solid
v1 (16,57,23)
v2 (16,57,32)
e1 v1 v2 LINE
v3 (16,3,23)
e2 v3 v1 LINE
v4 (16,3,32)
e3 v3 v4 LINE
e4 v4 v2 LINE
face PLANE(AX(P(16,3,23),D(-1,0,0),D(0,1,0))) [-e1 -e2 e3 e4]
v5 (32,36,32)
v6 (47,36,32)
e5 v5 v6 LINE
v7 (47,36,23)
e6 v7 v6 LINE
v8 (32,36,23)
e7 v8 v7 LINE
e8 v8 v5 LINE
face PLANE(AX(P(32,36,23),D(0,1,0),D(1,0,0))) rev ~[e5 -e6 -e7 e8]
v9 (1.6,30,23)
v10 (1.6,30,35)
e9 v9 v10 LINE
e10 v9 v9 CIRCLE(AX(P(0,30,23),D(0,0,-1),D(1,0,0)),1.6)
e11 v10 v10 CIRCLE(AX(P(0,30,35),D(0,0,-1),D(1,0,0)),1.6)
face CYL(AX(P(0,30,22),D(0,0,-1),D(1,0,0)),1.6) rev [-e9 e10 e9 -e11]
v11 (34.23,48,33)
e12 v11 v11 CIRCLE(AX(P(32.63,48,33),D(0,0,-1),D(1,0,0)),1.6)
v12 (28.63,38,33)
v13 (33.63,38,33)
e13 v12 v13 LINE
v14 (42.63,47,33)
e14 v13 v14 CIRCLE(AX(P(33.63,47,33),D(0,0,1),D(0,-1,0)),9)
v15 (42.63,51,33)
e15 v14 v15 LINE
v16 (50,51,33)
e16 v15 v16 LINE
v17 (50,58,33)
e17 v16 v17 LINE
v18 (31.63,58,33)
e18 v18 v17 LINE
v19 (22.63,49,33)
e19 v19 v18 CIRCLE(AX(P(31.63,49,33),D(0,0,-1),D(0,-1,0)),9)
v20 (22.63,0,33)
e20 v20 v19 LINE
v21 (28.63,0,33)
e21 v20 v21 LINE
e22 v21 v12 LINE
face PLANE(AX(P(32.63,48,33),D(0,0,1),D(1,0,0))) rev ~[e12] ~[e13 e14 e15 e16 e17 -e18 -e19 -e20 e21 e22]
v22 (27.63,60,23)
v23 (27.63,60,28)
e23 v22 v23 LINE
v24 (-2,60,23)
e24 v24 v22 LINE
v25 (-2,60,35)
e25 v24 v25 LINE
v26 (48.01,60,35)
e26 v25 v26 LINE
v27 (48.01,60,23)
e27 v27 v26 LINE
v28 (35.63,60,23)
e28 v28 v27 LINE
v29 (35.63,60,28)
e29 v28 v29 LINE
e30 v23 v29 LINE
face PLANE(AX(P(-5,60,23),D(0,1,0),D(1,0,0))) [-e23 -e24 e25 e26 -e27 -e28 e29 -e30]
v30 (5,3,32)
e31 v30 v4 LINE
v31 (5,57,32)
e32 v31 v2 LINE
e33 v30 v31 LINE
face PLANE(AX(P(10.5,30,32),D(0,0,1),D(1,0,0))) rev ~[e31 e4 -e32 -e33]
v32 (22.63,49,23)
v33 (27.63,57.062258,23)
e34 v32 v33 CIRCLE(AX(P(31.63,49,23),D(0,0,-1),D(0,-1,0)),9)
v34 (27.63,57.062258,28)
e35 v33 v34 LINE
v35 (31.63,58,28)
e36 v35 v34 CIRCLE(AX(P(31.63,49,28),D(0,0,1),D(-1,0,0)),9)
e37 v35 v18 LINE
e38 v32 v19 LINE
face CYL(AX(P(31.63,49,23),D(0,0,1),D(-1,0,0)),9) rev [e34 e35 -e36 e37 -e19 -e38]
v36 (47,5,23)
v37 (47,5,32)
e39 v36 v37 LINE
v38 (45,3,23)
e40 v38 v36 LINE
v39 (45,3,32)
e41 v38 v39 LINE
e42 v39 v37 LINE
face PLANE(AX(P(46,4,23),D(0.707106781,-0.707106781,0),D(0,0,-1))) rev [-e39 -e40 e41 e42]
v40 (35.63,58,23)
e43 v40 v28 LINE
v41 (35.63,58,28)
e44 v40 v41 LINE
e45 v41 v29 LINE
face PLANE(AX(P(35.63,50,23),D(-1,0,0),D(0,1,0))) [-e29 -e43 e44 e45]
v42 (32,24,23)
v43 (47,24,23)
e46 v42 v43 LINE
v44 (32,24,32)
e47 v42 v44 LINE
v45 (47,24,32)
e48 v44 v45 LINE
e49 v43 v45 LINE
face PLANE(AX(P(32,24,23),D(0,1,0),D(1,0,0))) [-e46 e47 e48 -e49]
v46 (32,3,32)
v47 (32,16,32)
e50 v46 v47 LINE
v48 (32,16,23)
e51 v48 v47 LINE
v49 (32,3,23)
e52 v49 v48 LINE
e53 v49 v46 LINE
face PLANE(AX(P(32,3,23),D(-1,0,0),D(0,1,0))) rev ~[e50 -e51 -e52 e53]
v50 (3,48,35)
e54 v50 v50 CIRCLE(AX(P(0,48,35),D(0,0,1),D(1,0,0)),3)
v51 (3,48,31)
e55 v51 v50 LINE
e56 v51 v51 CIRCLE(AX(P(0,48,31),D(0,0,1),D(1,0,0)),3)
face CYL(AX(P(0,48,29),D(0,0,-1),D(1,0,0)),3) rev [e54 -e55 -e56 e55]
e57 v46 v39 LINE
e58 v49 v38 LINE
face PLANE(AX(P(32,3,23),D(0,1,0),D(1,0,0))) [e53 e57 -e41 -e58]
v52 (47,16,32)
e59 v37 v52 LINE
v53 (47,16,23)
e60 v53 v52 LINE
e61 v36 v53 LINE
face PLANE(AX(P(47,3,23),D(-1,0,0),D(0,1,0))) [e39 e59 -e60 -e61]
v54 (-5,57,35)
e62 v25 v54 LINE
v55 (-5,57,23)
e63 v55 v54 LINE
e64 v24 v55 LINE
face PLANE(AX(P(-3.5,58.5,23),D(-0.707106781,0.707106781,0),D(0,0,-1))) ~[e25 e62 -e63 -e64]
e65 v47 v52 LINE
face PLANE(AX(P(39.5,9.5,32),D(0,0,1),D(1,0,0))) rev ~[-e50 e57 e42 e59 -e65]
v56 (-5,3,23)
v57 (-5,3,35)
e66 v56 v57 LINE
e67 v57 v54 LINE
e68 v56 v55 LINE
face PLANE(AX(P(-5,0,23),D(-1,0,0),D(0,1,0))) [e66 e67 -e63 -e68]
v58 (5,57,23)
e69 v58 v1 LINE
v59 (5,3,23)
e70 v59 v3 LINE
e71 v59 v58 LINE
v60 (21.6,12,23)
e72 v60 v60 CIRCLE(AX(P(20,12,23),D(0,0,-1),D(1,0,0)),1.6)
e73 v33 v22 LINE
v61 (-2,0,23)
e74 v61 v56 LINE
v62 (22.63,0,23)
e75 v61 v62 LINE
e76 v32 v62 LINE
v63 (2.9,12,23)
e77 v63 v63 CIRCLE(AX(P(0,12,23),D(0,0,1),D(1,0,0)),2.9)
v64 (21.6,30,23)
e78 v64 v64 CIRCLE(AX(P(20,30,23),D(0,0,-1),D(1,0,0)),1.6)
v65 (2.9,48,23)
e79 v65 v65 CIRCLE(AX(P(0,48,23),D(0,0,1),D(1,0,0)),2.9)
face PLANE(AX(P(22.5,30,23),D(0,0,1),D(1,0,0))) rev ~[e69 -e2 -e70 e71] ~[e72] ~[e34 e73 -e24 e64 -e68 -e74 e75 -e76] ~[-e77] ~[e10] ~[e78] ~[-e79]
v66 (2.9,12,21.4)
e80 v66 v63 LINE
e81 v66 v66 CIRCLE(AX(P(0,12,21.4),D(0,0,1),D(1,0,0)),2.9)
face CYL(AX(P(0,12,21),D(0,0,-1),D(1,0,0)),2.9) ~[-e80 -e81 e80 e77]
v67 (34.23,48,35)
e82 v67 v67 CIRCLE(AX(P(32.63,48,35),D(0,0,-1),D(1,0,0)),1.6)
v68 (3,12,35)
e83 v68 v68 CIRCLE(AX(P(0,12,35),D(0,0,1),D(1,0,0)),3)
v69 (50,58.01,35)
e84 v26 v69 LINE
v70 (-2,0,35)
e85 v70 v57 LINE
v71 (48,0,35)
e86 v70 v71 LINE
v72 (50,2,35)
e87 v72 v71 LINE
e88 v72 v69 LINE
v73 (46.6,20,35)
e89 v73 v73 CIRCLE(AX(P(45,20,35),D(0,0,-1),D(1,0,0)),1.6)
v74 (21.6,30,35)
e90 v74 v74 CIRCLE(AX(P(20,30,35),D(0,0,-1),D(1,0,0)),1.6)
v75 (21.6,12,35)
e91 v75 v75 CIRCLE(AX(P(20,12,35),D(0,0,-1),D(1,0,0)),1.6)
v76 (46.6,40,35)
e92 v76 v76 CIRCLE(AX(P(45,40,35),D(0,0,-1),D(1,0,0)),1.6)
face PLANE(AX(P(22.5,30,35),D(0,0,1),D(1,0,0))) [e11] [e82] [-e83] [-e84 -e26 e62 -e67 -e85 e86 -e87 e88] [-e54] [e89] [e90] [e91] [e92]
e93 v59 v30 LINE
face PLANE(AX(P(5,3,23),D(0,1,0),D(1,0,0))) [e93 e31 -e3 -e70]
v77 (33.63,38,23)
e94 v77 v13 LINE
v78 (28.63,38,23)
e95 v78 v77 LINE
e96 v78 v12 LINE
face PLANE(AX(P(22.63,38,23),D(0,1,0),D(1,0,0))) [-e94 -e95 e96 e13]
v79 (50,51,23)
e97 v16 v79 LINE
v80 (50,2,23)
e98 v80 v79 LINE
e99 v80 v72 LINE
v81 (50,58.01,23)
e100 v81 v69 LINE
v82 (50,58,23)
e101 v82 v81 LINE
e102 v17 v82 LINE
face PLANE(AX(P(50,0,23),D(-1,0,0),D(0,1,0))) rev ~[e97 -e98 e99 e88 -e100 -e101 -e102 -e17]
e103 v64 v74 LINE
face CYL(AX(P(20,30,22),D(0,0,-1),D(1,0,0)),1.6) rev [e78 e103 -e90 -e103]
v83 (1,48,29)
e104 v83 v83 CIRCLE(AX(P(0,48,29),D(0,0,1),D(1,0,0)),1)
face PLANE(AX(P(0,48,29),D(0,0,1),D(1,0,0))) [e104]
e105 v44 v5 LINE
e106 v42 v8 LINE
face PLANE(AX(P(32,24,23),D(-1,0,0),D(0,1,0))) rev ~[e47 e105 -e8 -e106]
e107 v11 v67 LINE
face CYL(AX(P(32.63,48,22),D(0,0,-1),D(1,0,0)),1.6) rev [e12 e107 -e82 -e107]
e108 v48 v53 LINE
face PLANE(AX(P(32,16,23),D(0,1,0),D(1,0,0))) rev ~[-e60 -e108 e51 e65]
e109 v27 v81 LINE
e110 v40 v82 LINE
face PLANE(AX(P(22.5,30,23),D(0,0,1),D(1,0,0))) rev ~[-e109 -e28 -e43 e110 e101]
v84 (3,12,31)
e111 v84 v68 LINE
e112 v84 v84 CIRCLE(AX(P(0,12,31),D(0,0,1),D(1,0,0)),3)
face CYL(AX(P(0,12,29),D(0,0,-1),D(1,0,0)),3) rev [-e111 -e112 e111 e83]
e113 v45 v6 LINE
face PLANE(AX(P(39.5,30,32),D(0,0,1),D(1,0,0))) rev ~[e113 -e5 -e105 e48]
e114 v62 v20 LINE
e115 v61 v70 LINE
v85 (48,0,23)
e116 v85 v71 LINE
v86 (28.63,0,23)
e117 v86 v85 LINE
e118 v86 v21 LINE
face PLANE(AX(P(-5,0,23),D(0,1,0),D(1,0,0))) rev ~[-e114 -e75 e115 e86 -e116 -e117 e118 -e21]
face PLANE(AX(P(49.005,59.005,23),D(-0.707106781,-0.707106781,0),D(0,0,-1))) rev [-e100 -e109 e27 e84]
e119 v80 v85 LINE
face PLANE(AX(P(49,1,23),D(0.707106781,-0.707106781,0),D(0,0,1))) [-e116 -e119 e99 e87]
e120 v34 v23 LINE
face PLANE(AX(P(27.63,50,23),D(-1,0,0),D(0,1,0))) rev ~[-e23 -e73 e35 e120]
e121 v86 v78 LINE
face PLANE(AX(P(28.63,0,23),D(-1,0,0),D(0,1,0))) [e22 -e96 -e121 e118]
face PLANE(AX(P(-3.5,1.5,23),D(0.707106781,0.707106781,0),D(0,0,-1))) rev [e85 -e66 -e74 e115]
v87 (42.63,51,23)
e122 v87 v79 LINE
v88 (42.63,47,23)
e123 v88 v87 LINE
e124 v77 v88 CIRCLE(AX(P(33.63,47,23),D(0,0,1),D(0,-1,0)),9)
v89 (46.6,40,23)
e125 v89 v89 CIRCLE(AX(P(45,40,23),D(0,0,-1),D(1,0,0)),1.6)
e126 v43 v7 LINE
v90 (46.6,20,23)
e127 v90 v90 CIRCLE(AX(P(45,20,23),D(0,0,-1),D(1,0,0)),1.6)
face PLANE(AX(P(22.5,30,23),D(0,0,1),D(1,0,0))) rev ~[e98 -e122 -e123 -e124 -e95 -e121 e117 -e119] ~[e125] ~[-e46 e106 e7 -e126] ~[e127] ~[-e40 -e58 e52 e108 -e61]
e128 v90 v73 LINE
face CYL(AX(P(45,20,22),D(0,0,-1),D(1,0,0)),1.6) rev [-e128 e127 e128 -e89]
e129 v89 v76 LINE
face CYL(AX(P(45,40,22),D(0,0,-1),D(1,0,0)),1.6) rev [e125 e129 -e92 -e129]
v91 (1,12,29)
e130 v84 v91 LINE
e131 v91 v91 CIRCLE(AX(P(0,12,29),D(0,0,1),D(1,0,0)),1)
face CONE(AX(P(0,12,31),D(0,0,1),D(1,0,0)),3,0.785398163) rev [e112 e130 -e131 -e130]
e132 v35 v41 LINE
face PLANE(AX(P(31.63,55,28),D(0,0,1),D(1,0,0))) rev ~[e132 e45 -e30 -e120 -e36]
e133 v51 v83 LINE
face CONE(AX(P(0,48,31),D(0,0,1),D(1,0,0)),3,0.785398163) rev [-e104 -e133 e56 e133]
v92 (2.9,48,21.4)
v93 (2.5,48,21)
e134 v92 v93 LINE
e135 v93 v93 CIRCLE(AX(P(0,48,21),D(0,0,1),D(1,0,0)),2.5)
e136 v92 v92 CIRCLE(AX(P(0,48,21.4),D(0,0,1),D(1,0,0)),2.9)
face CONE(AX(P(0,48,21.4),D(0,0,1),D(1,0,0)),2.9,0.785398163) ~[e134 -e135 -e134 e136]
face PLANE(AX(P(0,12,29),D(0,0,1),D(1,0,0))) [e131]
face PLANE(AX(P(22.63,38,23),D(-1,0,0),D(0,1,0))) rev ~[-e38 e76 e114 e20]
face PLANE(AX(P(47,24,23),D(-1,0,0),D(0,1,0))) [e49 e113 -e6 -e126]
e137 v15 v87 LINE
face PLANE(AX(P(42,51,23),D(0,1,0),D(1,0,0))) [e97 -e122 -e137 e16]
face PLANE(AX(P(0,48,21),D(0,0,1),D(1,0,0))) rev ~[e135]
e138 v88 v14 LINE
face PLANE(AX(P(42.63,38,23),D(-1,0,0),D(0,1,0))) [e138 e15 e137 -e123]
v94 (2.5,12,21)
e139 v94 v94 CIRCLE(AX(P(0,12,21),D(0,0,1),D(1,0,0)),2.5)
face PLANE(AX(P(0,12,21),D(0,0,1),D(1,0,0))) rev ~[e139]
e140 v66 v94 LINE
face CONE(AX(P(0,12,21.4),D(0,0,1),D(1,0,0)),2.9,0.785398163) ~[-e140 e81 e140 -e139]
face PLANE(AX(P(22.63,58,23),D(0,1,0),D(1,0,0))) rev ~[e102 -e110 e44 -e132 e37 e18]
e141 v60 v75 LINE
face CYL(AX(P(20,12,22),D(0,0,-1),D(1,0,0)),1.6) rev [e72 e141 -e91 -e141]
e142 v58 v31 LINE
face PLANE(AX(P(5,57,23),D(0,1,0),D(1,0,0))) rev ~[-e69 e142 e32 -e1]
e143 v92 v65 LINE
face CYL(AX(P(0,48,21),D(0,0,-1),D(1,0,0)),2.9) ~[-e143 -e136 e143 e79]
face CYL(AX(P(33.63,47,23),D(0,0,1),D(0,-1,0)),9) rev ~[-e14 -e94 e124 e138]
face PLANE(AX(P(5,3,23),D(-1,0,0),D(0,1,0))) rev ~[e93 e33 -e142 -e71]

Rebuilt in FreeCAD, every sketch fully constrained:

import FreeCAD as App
import Part
import Sketcher


def edges_at(feature, points):
    """Names of the edges that pass closest to the given points."""
    edges = feature.Shape.Edges
    near = lambda p: min(range(len(edges)), key=lambda i: edges[i].distToShape(Part.Vertex(*p))[0])
    return sorted({f"Edge{near(p) + 1}" for p in points})

doc = App.newDocument("Part")
body = doc.addObject("PartDesign::Body", "Body")

# Sketch on XY plane
sketch1 = body.newObject("Sketcher::SketchObject", "Sketch")
sketch1.AttachmentSupport = (doc.getObject("XY_Plane"), [""])
sketch1.MapMode = "FlatFace"
sketch1.AttachmentOffset = App.Placement(App.Vector(0, 0, 23), App.Rotation())
sketch1.addGeometry(Part.LineSegment(App.Vector(27.63, 60, 0), App.Vector(27.63, 50, 0)), False)
sketch1.addGeometry(Part.LineSegment(App.Vector(27.63, 50, 0), App.Vector(35.63, 50, 0)), False)
sketch1.addGeometry(Part.LineSegment(App.Vector(35.63, 50, 0), App.Vector(35.63, 60, 0)), False)
sketch1.addGeometry(Part.LineSegment(App.Vector(35.63, 60, 0), App.Vector(27.63, 60, 0)), False)
sketch1.addConstraint(Sketcher.Constraint("Coincident", 0, 2, 1, 1))
sketch1.addConstraint(Sketcher.Constraint("Coincident", 1, 2, 2, 1))
sketch1.addConstraint(Sketcher.Constraint("Coincident", 2, 2, 3, 1))
sketch1.addConstraint(Sketcher.Constraint("Coincident", 3, 2, 0, 1))
sketch1.addConstraint(Sketcher.Constraint("Vertical", 0))
sketch1.addConstraint(Sketcher.Constraint("Horizontal", 1))
sketch1.addConstraint(Sketcher.Constraint("Vertical", 2))
sketch1.addConstraint(Sketcher.Constraint("Horizontal", 3))
sketch1.addConstraint(Sketcher.Constraint("DistanceX", 1, 1, 1, 2, 8.0))
sketch1.addConstraint(Sketcher.Constraint("DistanceY", 0, 2, 0, 1, 10.0))
sketch1.addConstraint(Sketcher.Constraint("DistanceY", -1, 1, 0, 2, 50.0))
sketch1.addConstraint(Sketcher.Constraint("DistanceX", -1, 1, 0, 2, 27.63))
pad1 = body.newObject("PartDesign::Pad", "Pad")
pad1.Profile = sketch1
pad1.Length = 5
body2 = doc.addObject("PartDesign::Body", "Body001")

# Sketch on XY plane
sketch2 = body2.newObject("Sketcher::SketchObject", "Sketch001")
sketch2.AttachmentSupport = (doc.getObject("XY_Plane001"), [""])
sketch2.MapMode = "FlatFace"
sketch2.AttachmentOffset = App.Placement(App.Vector(0, 0, 22), App.Rotation())
sketch2.addGeometry(Part.Circle(App.Vector(0, 48, 0), App.Vector(0, 0, 1), 2.9), False)
sketch2.addConstraint(Sketcher.Constraint("PointOnObject", 0, 3, -2))
sketch2.addConstraint(Sketcher.Constraint("Diameter", 0, 5.8))
sketch2.addConstraint(Sketcher.Constraint("DistanceY", -1, 1, 0, 3, 48.0))
pad2 = body2.newObject("PartDesign::Pad", "Pad001")
pad2.Profile = sketch2
pad2.Length = 2
body3 = doc.addObject("PartDesign::Body", "Body002")
body3.AllowCompound = True

# Sketch on XY plane
sketch3 = body3.newObject("Sketcher::SketchObject", "Sketch002")
sketch3.AttachmentSupport = (doc.getObject("XY_Plane002"), [""])
sketch3.MapMode = "FlatFace"
sketch3.AttachmentOffset = App.Placement(App.Vector(0, 0, 22), App.Rotation())
sketch3.addGeometry(Part.Circle(App.Vector(0, 12, 0), App.Vector(0, 0, 1), 2.9), False)
sketch3.addConstraint(Sketcher.Constraint("PointOnObject", 0, 3, -2))
sketch3.addConstraint(Sketcher.Constraint("Diameter", 0, 5.8))
sketch3.addConstraint(Sketcher.Constraint("DistanceY", -1, 1, 0, 3, 12.0))
pad3 = body3.newObject("PartDesign::Pad", "Pad002")
pad3.Profile = sketch3
pad3.Length = 2
doc.recompute()

boolean = body3.newObject("PartDesign::Boolean", "Boolean")
boolean.Type = "Fuse"
boolean.addObjects([body2])
body4 = doc.addObject("PartDesign::Body", "Body003")
body4.AllowCompound = True
doc.recompute()

body3.Placement = App.Placement(App.Vector(0, 0, -1), App.Rotation(App.Vector(0, 0, 1), 0))
boolean2 = body4.newObject("PartDesign::Boolean", "Boolean001")
boolean2.Type = "Fuse"
boolean2.addObjects([body3])
doc.recompute()

chamfer = body4.newObject("PartDesign::Chamfer", "Chamfer")
chamfer.Base = (boolean2, edges_at(boolean2, [(-2.9, 12, 21), (-2.9, 48, 21)]))
chamfer.Size = 0.4
body5 = doc.addObject("PartDesign::Body", "Body004")

# Sketch on XY plane
sketch4 = body5.newObject("Sketcher::SketchObject", "Sketch003")
sketch4.AttachmentSupport = (doc.getObject("XY_Plane004"), [""])
sketch4.MapMode = "FlatFace"
sketch4.AttachmentOffset = App.Placement(App.Vector(0, 0, 23), App.Rotation())
sketch4.addGeometry(Part.LineSegment(App.Vector(32, 16, 0), App.Vector(32, 3, 0)), False)
sketch4.addGeometry(Part.LineSegment(App.Vector(32, 3, 0), App.Vector(47, 3, 0)), False)
sketch4.addGeometry(Part.LineSegment(App.Vector(47, 3, 0), App.Vector(47, 16, 0)), False)
sketch4.addGeometry(Part.LineSegment(App.Vector(47, 16, 0), App.Vector(32, 16, 0)), False)
sketch4.addConstraint(Sketcher.Constraint("Coincident", 0, 2, 1, 1))
sketch4.addConstraint(Sketcher.Constraint("Coincident", 1, 2, 2, 1))
sketch4.addConstraint(Sketcher.Constraint("Coincident", 2, 2, 3, 1))
sketch4.addConstraint(Sketcher.Constraint("Coincident", 3, 2, 0, 1))
sketch4.addConstraint(Sketcher.Constraint("Vertical", 0))
sketch4.addConstraint(Sketcher.Constraint("Horizontal", 1))
sketch4.addConstraint(Sketcher.Constraint("Vertical", 2))
sketch4.addConstraint(Sketcher.Constraint("Horizontal", 3))
sketch4.addConstraint(Sketcher.Constraint("DistanceX", 1, 1, 1, 2, 15.0))
sketch4.addConstraint(Sketcher.Constraint("DistanceY", 0, 2, 0, 1, 13.0))
sketch4.addConstraint(Sketcher.Constraint("DistanceX", -1, 1, 0, 2, 32.0))
sketch4.addConstraint(Sketcher.Constraint("DistanceY", -1, 1, 0, 2, 3.0))
pad4 = body5.newObject("PartDesign::Pad", "Pad003")
pad4.Profile = sketch4
pad4.Length = 9
doc.recompute()

chamfer2 = body5.newObject("PartDesign::Chamfer", "Chamfer001")
chamfer2.Base = (pad4, edges_at(pad4, [(47, 3, 27.5)]))
chamfer2.Size = 2
body6 = doc.addObject("PartDesign::Body", "Body005")

# Sketch on XY plane
sketch5 = body6.newObject("Sketcher::SketchObject", "Sketch004")
sketch5.AttachmentSupport = (doc.getObject("XY_Plane005"), [""])
sketch5.MapMode = "FlatFace"
sketch5.AttachmentOffset = App.Placement(App.Vector(0, 0, 23), App.Rotation())
sketch5.addGeometry(Part.LineSegment(App.Vector(5, 57, 0), App.Vector(5, 3, 0)), False)
sketch5.addGeometry(Part.LineSegment(App.Vector(5, 3, 0), App.Vector(16, 3, 0)), False)
sketch5.addGeometry(Part.LineSegment(App.Vector(16, 3, 0), App.Vector(16, 57, 0)), False)
sketch5.addGeometry(Part.LineSegment(App.Vector(16, 57, 0), App.Vector(5, 57, 0)), False)
sketch5.addConstraint(Sketcher.Constraint("Coincident", 0, 2, 1, 1))
sketch5.addConstraint(Sketcher.Constraint("Coincident", 1, 2, 2, 1))
sketch5.addConstraint(Sketcher.Constraint("Coincident", 2, 2, 3, 1))
sketch5.addConstraint(Sketcher.Constraint("Coincident", 3, 2, 0, 1))
sketch5.addConstraint(Sketcher.Constraint("Vertical", 0))
sketch5.addConstraint(Sketcher.Constraint("Horizontal", 1))
sketch5.addConstraint(Sketcher.Constraint("Vertical", 2))
sketch5.addConstraint(Sketcher.Constraint("Horizontal", 3))
sketch5.addConstraint(Sketcher.Constraint("DistanceX", 1, 1, 1, 2, 11.0))
sketch5.addConstraint(Sketcher.Constraint("DistanceY", 0, 2, 0, 1, 54.0))
sketch5.addConstraint(Sketcher.Constraint("DistanceX", -1, 1, 0, 2, 5.0))
sketch5.addConstraint(Sketcher.Constraint("DistanceY", -1, 1, 0, 2, 3.0))
pad5 = body6.newObject("PartDesign::Pad", "Pad004")
pad5.Profile = sketch5
pad5.Length = 9
body7 = doc.addObject("PartDesign::Body", "Body006")
body7.AllowCompound = True

# Sketch on XY plane
sketch6 = body7.newObject("Sketcher::SketchObject", "Sketch005")
sketch6.AttachmentSupport = (doc.getObject("XY_Plane006"), [""])
sketch6.MapMode = "FlatFace"
sketch6.AttachmentOffset = App.Placement(App.Vector(0, 0, 23), App.Rotation())
sketch6.addGeometry(Part.LineSegment(App.Vector(32, 36, 0), App.Vector(32, 24, 0)), False)
sketch6.addGeometry(Part.LineSegment(App.Vector(32, 24, 0), App.Vector(47, 24, 0)), False)
sketch6.addGeometry(Part.LineSegment(App.Vector(47, 24, 0), App.Vector(47, 36, 0)), False)
sketch6.addGeometry(Part.LineSegment(App.Vector(47, 36, 0), App.Vector(32, 36, 0)), False)
sketch6.addConstraint(Sketcher.Constraint("Coincident", 0, 2, 1, 1))
sketch6.addConstraint(Sketcher.Constraint("Coincident", 1, 2, 2, 1))
sketch6.addConstraint(Sketcher.Constraint("Coincident", 2, 2, 3, 1))
sketch6.addConstraint(Sketcher.Constraint("Coincident", 3, 2, 0, 1))
sketch6.addConstraint(Sketcher.Constraint("Vertical", 0))
sketch6.addConstraint(Sketcher.Constraint("Horizontal", 1))
sketch6.addConstraint(Sketcher.Constraint("Vertical", 2))
sketch6.addConstraint(Sketcher.Constraint("Horizontal", 3))
sketch6.addConstraint(Sketcher.Constraint("DistanceX", 1, 1, 1, 2, 15.0))
sketch6.addConstraint(Sketcher.Constraint("DistanceY", 0, 2, 0, 1, 12.0))
sketch6.addConstraint(Sketcher.Constraint("DistanceX", -1, 1, 0, 2, 32.0))
sketch6.addConstraint(Sketcher.Constraint("DistanceY", -1, 1, 0, 2, 24.0))
pad6 = body7.newObject("PartDesign::Pad", "Pad005")
pad6.Profile = sketch6
pad6.Length = 9
doc.recompute()

boolean3 = body7.newObject("PartDesign::Boolean", "Boolean002")
boolean3.Type = "Fuse"
boolean3.addObjects([body5])
doc.recompute()

boolean4 = body7.newObject("PartDesign::Boolean", "Boolean003")
boolean4.Type = "Fuse"
boolean4.addObjects([body6])
body8 = doc.addObject("PartDesign::Body", "Body007")

# Sketch on XY plane
sketch7 = body8.newObject("Sketcher::SketchObject", "Sketch006")
sketch7.AttachmentSupport = (doc.getObject("XY_Plane007"), [""])
sketch7.MapMode = "FlatFace"
sketch7.AttachmentOffset = App.Placement(App.Vector(0, 0, 35), App.Rotation())
sketch7.addGeometry(Part.Circle(App.Vector(0, 12, 0), App.Vector(0, 0, 1), 3), False)
sketch7.addConstraint(Sketcher.Constraint("PointOnObject", 0, 3, -2))
sketch7.addConstraint(Sketcher.Constraint("Diameter", 0, 6.0))
sketch7.addConstraint(Sketcher.Constraint("DistanceY", -1, 1, 0, 3, 12.0))
pad7 = body8.newObject("PartDesign::Pad", "Pad006")
pad7.Profile = sketch7
pad7.Length = 6
doc.recompute()

chamfer3 = body8.newObject("PartDesign::Chamfer", "Chamfer002")
chamfer3.Base = (pad7, edges_at(pad7, [(-3, 12, 35)]))
chamfer3.Size = 2
body9 = doc.addObject("PartDesign::Body", "Body008")
body9.AllowCompound = True

# Sketch on XY plane
sketch8 = body9.newObject("Sketcher::SketchObject", "Sketch007")
sketch8.AttachmentSupport = (doc.getObject("XY_Plane008"), [""])
sketch8.MapMode = "FlatFace"
sketch8.AttachmentOffset = App.Placement(App.Vector(0, 0, 35), App.Rotation())
sketch8.addGeometry(Part.Circle(App.Vector(0, 48, 0), App.Vector(0, 0, 1), 3), False)
sketch8.addConstraint(Sketcher.Constraint("PointOnObject", 0, 3, -2))
sketch8.addConstraint(Sketcher.Constraint("Diameter", 0, 6.0))
sketch8.addConstraint(Sketcher.Constraint("DistanceY", -1, 1, 0, 3, 48.0))
pad8 = body9.newObject("PartDesign::Pad", "Pad007")
pad8.Profile = sketch8
pad8.Length = 6
doc.recompute()

chamfer4 = body9.newObject("PartDesign::Chamfer", "Chamfer003")
chamfer4.Base = (pad8, edges_at(pad8, [(-3, 48, 35)]))
chamfer4.Size = 2
doc.recompute()

boolean5 = body9.newObject("PartDesign::Boolean", "Boolean004")
boolean5.Type = "Fuse"
boolean5.addObjects([body8])
body10 = doc.addObject("PartDesign::Body", "Body009")
body10.AllowCompound = True
doc.recompute()

body9.Placement = App.Placement(App.Vector(0, 0, -6), App.Rotation(App.Vector(0, 0, 1), 0))
boolean6 = body10.newObject("PartDesign::Boolean", "Boolean005")
boolean6.Type = "Fuse"
boolean6.addObjects([body9])
body11 = doc.addObject("PartDesign::Body", "Body010")

# Sketch on XY plane
sketch9 = body11.newObject("Sketcher::SketchObject", "Sketch008")
sketch9.AttachmentSupport = (doc.getObject("XY_Plane010"), [""])
sketch9.MapMode = "FlatFace"
sketch9.AttachmentOffset = App.Placement(App.Vector(0, 0, 23), App.Rotation())
sketch9.addGeometry(Part.LineSegment(App.Vector(22.63, 58, 0), App.Vector(22.63, 38, 0)), False)
sketch9.addGeometry(Part.LineSegment(App.Vector(22.63, 38, 0), App.Vector(42.63, 38, 0)), False)
sketch9.addGeometry(Part.LineSegment(App.Vector(42.63, 38, 0), App.Vector(42.63, 58, 0)), False)
sketch9.addGeometry(Part.LineSegment(App.Vector(42.63, 58, 0), App.Vector(22.63, 58, 0)), False)
sketch9.addConstraint(Sketcher.Constraint("Coincident", 0, 2, 1, 1))
sketch9.addConstraint(Sketcher.Constraint("Coincident", 1, 2, 2, 1))
sketch9.addConstraint(Sketcher.Constraint("Coincident", 2, 2, 3, 1))
sketch9.addConstraint(Sketcher.Constraint("Coincident", 3, 2, 0, 1))
sketch9.addConstraint(Sketcher.Constraint("Vertical", 0))
sketch9.addConstraint(Sketcher.Constraint("Horizontal", 1))
sketch9.addConstraint(Sketcher.Constraint("Vertical", 2))
sketch9.addConstraint(Sketcher.Constraint("Horizontal", 3))
sketch9.addConstraint(Sketcher.Constraint("Equal", 3, 0))
sketch9.addConstraint(Sketcher.Constraint("DistanceX", 1, 1, 1, 2, 20.0))
sketch9.addConstraint(Sketcher.Constraint("DistanceY", -1, 1, 0, 2, 38.0))
sketch9.addConstraint(Sketcher.Constraint("DistanceX", -1, 1, 0, 2, 22.63))
pad9 = body11.newObject("PartDesign::Pad", "Pad008")
pad9.Profile = sketch9
pad9.Length = 10
doc.recompute()

fillet = body11.newObject("PartDesign::Fillet", "Fillet")
fillet.Base = (pad9, edges_at(pad9, [(22.63, 58, 28), (42.63, 38, 28)]))
fillet.Radius = 9
body12 = doc.addObject("PartDesign::Body", "Body011")

# Sketch on XY plane
sketch10 = body12.newObject("Sketcher::SketchObject", "Sketch009")
sketch10.AttachmentSupport = (doc.getObject("XY_Plane011"), [""])
sketch10.MapMode = "FlatFace"
sketch10.AttachmentOffset = App.Placement(App.Vector(0, 0, 23), App.Rotation())
sketch10.addGeometry(Part.LineSegment(App.Vector(42, 58, 0), App.Vector(42, 51, 0)), False)
sketch10.addGeometry(Part.LineSegment(App.Vector(42, 51, 0), App.Vector(51, 51, 0)), False)
sketch10.addGeometry(Part.LineSegment(App.Vector(51, 51, 0), App.Vector(51, 58, 0)), False)
sketch10.addGeometry(Part.LineSegment(App.Vector(51, 58, 0), App.Vector(42, 58, 0)), False)
sketch10.addConstraint(Sketcher.Constraint("Coincident", 0, 2, 1, 1))
sketch10.addConstraint(Sketcher.Constraint("Coincident", 1, 2, 2, 1))
sketch10.addConstraint(Sketcher.Constraint("Coincident", 2, 2, 3, 1))
sketch10.addConstraint(Sketcher.Constraint("Coincident", 3, 2, 0, 1))
sketch10.addConstraint(Sketcher.Constraint("Vertical", 0))
sketch10.addConstraint(Sketcher.Constraint("Horizontal", 1))
sketch10.addConstraint(Sketcher.Constraint("Vertical", 2))
sketch10.addConstraint(Sketcher.Constraint("Horizontal", 3))
sketch10.addConstraint(Sketcher.Constraint("DistanceX", 1, 1, 1, 2, 9.0))
sketch10.addConstraint(Sketcher.Constraint("DistanceY", 0, 2, 0, 1, 7.0))
sketch10.addConstraint(Sketcher.Constraint("DistanceX", -1, 1, 0, 2, 42.0))
sketch10.addConstraint(Sketcher.Constraint("DistanceY", -1, 1, 0, 2, 51.0))
pad10 = body12.newObject("PartDesign::Pad", "Pad009")
pad10.Profile = sketch10
pad10.Length = 10
body13 = doc.addObject("PartDesign::Body", "Body012")

# Sketch on XY plane
sketch11 = body13.newObject("Sketcher::SketchObject", "Sketch010")
sketch11.AttachmentSupport = (doc.getObject("XY_Plane012"), [""])
sketch11.MapMode = "FlatFace"
sketch11.AttachmentOffset = App.Placement(App.Vector(0, 0, 23), App.Rotation())
sketch11.addGeometry(Part.LineSegment(App.Vector(22.63, 38, 0), App.Vector(22.63, 0, 0)), False)
sketch11.addGeometry(Part.LineSegment(App.Vector(22.63, 0, 0), App.Vector(28.63, 0, 0)), False)
sketch11.addGeometry(Part.LineSegment(App.Vector(28.63, 0, 0), App.Vector(28.63, 38, 0)), False)
sketch11.addGeometry(Part.LineSegment(App.Vector(28.63, 38, 0), App.Vector(22.63, 38, 0)), False)
sketch11.addConstraint(Sketcher.Constraint("Coincident", 0, 2, 1, 1))
sketch11.addConstraint(Sketcher.Constraint("Coincident", 1, 2, 2, 1))
sketch11.addConstraint(Sketcher.Constraint("Coincident", 2, 2, 3, 1))
sketch11.addConstraint(Sketcher.Constraint("Coincident", 3, 2, 0, 1))
sketch11.addConstraint(Sketcher.Constraint("Vertical", 0))
sketch11.addConstraint(Sketcher.Constraint("Horizontal", 1))
sketch11.addConstraint(Sketcher.Constraint("Vertical", 2))
sketch11.addConstraint(Sketcher.Constraint("Horizontal", 3))
sketch11.addConstraint(Sketcher.Constraint("PointOnObject", 0, 2, -1))
sketch11.addConstraint(Sketcher.Constraint("DistanceX", 1, 1, 1, 2, 6.0))
sketch11.addConstraint(Sketcher.Constraint("DistanceY", 0, 2, 0, 1, 38.0))
sketch11.addConstraint(Sketcher.Constraint("DistanceX", -1, 1, 0, 2, 22.63))
pad11 = body13.newObject("PartDesign::Pad", "Pad010")
pad11.Profile = sketch11
pad11.Length = 10
doc.recompute()

boolean7 = body13.newObject("PartDesign::Boolean", "Boolean006")
boolean7.Type = "Fuse"
boolean7.addObjects([body11])
doc.recompute()

boolean8 = body13.newObject("PartDesign::Boolean", "Boolean007")
boolean8.Type = "Fuse"
boolean8.addObjects([body12])
body14 = doc.addObject("PartDesign::Body", "Body013")

# Sketch on XY plane
sketch12 = body14.newObject("Sketcher::SketchObject", "Sketch011")
sketch12.AttachmentSupport = (doc.getObject("XY_Plane013"), [""])
sketch12.MapMode = "FlatFace"
sketch12.AttachmentOffset = App.Placement(App.Vector(0, 0, 22), App.Rotation())
sketch12.addGeometry(Part.Circle(App.Vector(20, 30, 0), App.Vector(0, 0, 1), 1.6), False)
sketch12.addConstraint(Sketcher.Constraint("Diameter", 0, 3.2))
sketch12.addConstraint(Sketcher.Constraint("DistanceX", -1, 1, 0, 3, 20.0))
sketch12.addConstraint(Sketcher.Constraint("DistanceY", -1, 1, 0, 3, 30.0))
pad12 = body14.newObject("PartDesign::Pad", "Pad011")
pad12.Profile = sketch12
pad12.Length = 20
body15 = doc.addObject("PartDesign::Body", "Body014")

# Sketch on XY plane
sketch13 = body15.newObject("Sketcher::SketchObject", "Sketch012")
sketch13.AttachmentSupport = (doc.getObject("XY_Plane014"), [""])
sketch13.MapMode = "FlatFace"
sketch13.AttachmentOffset = App.Placement(App.Vector(0, 0, 22), App.Rotation())
sketch13.addGeometry(Part.Circle(App.Vector(20, 12, 0), App.Vector(0, 0, 1), 1.6), False)
sketch13.addConstraint(Sketcher.Constraint("Diameter", 0, 3.2))
sketch13.addConstraint(Sketcher.Constraint("DistanceX", -1, 1, 0, 3, 20.0))
sketch13.addConstraint(Sketcher.Constraint("DistanceY", -1, 1, 0, 3, 12.0))
pad13 = body15.newObject("PartDesign::Pad", "Pad012")
pad13.Profile = sketch13
pad13.Length = 20
body16 = doc.addObject("PartDesign::Body", "Body015")

# Sketch on XY plane
sketch14 = body16.newObject("Sketcher::SketchObject", "Sketch013")
sketch14.AttachmentSupport = (doc.getObject("XY_Plane015"), [""])
sketch14.MapMode = "FlatFace"
sketch14.AttachmentOffset = App.Placement(App.Vector(0, 0, 22), App.Rotation())
sketch14.addGeometry(Part.Circle(App.Vector(45, 20, 0), App.Vector(0, 0, 1), 1.6), False)
sketch14.addConstraint(Sketcher.Constraint("Diameter", 0, 3.2))
sketch14.addConstraint(Sketcher.Constraint("DistanceX", -1, 1, 0, 3, 45.0))
sketch14.addConstraint(Sketcher.Constraint("DistanceY", -1, 1, 0, 3, 20.0))
pad14 = body16.newObject("PartDesign::Pad", "Pad013")
pad14.Profile = sketch14
pad14.Length = 20
body17 = doc.addObject("PartDesign::Body", "Body016")

# Sketch on XY plane
sketch15 = body17.newObject("Sketcher::SketchObject", "Sketch014")
sketch15.AttachmentSupport = (doc.getObject("XY_Plane016"), [""])
sketch15.MapMode = "FlatFace"
sketch15.AttachmentOffset = App.Placement(App.Vector(0, 0, 22), App.Rotation())
sketch15.addGeometry(Part.Circle(App.Vector(45, 40, 0), App.Vector(0, 0, 1), 1.6), False)
sketch15.addConstraint(Sketcher.Constraint("Diameter", 0, 3.2))
sketch15.addConstraint(Sketcher.Constraint("DistanceX", -1, 1, 0, 3, 45.0))
sketch15.addConstraint(Sketcher.Constraint("DistanceY", -1, 1, 0, 3, 40.0))
pad15 = body17.newObject("PartDesign::Pad", "Pad014")
pad15.Profile = sketch15
pad15.Length = 20
body18 = doc.addObject("PartDesign::Body", "Body017")

# Sketch on XY plane
sketch16 = body18.newObject("Sketcher::SketchObject", "Sketch015")
sketch16.AttachmentSupport = (doc.getObject("XY_Plane017"), [""])
sketch16.MapMode = "FlatFace"
sketch16.AttachmentOffset = App.Placement(App.Vector(0, 0, 22), App.Rotation())
sketch16.addGeometry(Part.Circle(App.Vector(32.63, 48, 0), App.Vector(0, 0, 1), 1.6), False)
sketch16.addConstraint(Sketcher.Constraint("Diameter", 0, 3.2))
sketch16.addConstraint(Sketcher.Constraint("DistanceY", -1, 1, 0, 3, 48.0))
sketch16.addConstraint(Sketcher.Constraint("DistanceX", -1, 1, 0, 3, 32.63))
pad16 = body18.newObject("PartDesign::Pad", "Pad015")
pad16.Profile = sketch16
pad16.Length = 20
body19 = doc.addObject("PartDesign::Body", "Body018")
body19.AllowCompound = True

# Sketch on XY plane
sketch17 = body19.newObject("Sketcher::SketchObject", "Sketch016")
sketch17.AttachmentSupport = (doc.getObject("XY_Plane018"), [""])
sketch17.MapMode = "FlatFace"
sketch17.AttachmentOffset = App.Placement(App.Vector(0, 0, 22), App.Rotation())
sketch17.addGeometry(Part.Circle(App.Vector(0, 30, 0), App.Vector(0, 0, 1), 1.6), False)
sketch17.addConstraint(Sketcher.Constraint("PointOnObject", 0, 3, -2))
sketch17.addConstraint(Sketcher.Constraint("Diameter", 0, 3.2))
sketch17.addConstraint(Sketcher.Constraint("DistanceY", -1, 1, 0, 3, 30.0))
pad17 = body19.newObject("PartDesign::Pad", "Pad016")
pad17.Profile = sketch17
pad17.Length = 20
doc.recompute()

boolean9 = body19.newObject("PartDesign::Boolean", "Boolean008")
boolean9.Type = "Fuse"
boolean9.addObjects([body14])
doc.recompute()

boolean10 = body19.newObject("PartDesign::Boolean", "Boolean009")
boolean10.Type = "Fuse"
boolean10.addObjects([body15])
doc.recompute()

boolean11 = body19.newObject("PartDesign::Boolean", "Boolean010")
boolean11.Type = "Fuse"
boolean11.addObjects([body16])
doc.recompute()

boolean12 = body19.newObject("PartDesign::Boolean", "Boolean011")
boolean12.Type = "Fuse"
boolean12.addObjects([body17])
doc.recompute()

boolean13 = body19.newObject("PartDesign::Boolean", "Boolean012")
boolean13.Type = "Fuse"
boolean13.addObjects([body18])
body20 = doc.addObject("PartDesign::Body", "Body019")

# Sketch on XY plane
sketch18 = body20.newObject("Sketcher::SketchObject", "Sketch017")
sketch18.AttachmentSupport = (doc.getObject("XY_Plane019"), [""])
sketch18.MapMode = "FlatFace"
sketch18.AttachmentOffset = App.Placement(App.Vector(0, 0, 23), App.Rotation())
sketch18.addGeometry(Part.LineSegment(App.Vector(-5, 60, 0), App.Vector(-5, 0, 0)), False)
sketch18.addGeometry(Part.LineSegment(App.Vector(-5, 0, 0), App.Vector(50, 0, 0)), False)
sketch18.addGeometry(Part.LineSegment(App.Vector(50, 0, 0), App.Vector(50, 60, 0)), False)
sketch18.addGeometry(Part.LineSegment(App.Vector(50, 60, 0), App.Vector(-5, 60, 0)), False)
sketch18.addConstraint(Sketcher.Constraint("Coincident", 0, 2, 1, 1))
sketch18.addConstraint(Sketcher.Constraint("Coincident", 1, 2, 2, 1))
sketch18.addConstraint(Sketcher.Constraint("Coincident", 2, 2, 3, 1))
sketch18.addConstraint(Sketcher.Constraint("Coincident", 3, 2, 0, 1))
sketch18.addConstraint(Sketcher.Constraint("Vertical", 0))
sketch18.addConstraint(Sketcher.Constraint("Horizontal", 1))
sketch18.addConstraint(Sketcher.Constraint("Vertical", 2))
sketch18.addConstraint(Sketcher.Constraint("Horizontal", 3))
sketch18.addConstraint(Sketcher.Constraint("PointOnObject", 0, 2, -1))
sketch18.addConstraint(Sketcher.Constraint("DistanceX", 1, 1, 1, 2, 55.0))
sketch18.addConstraint(Sketcher.Constraint("DistanceY", 0, 2, 0, 1, 60.0))
sketch18.addConstraint(Sketcher.Constraint("DistanceX", 0, 2, -1, 1, 5.0))
pad18 = body20.newObject("PartDesign::Pad", "Pad017")
pad18.Profile = sketch18
pad18.Length = 12
doc.recompute()

boolean14 = body20.newObject("PartDesign::Boolean", "Boolean013")
boolean14.Type = "Cut"
boolean14.addObjects([body19])
doc.recompute()

boolean15 = body20.newObject("PartDesign::Boolean", "Boolean014")
boolean15.Type = "Cut"
boolean15.addObjects([body13])
doc.recompute()

boolean16 = body20.newObject("PartDesign::Boolean", "Boolean015")
boolean16.Type = "Cut"
boolean16.addObjects([body10])
doc.recompute()

boolean17 = body20.newObject("PartDesign::Boolean", "Boolean016")
boolean17.Type = "Cut"
boolean17.addObjects([body7])
doc.recompute()

chamfer5 = body20.newObject("PartDesign::Chamfer", "Chamfer004")
chamfer5.Base = (boolean17, edges_at(boolean17, [(50, 60, 29)]))
chamfer5.Size = 1.99
doc.recompute()

chamfer6 = body20.newObject("PartDesign::Chamfer", "Chamfer005")
chamfer6.Base = (chamfer5, edges_at(chamfer5, [(50, 0, 29)]))
chamfer6.Size = 2
doc.recompute()

chamfer7 = body20.newObject("PartDesign::Chamfer", "Chamfer006")
chamfer7.Base = (chamfer6, edges_at(chamfer6, [(-5, 0, 29), (-5, 60, 29)]))
chamfer7.Size = 3
doc.recompute()

boolean18 = body20.newObject("PartDesign::Boolean", "Boolean017")
boolean18.Type = "Fuse"
boolean18.addObjects([body4])
doc.recompute()

boolean19 = body20.newObject("PartDesign::Boolean", "Boolean018")
boolean19.Type = "Cut"
boolean19.addObjects([body])

doc.recompute()
